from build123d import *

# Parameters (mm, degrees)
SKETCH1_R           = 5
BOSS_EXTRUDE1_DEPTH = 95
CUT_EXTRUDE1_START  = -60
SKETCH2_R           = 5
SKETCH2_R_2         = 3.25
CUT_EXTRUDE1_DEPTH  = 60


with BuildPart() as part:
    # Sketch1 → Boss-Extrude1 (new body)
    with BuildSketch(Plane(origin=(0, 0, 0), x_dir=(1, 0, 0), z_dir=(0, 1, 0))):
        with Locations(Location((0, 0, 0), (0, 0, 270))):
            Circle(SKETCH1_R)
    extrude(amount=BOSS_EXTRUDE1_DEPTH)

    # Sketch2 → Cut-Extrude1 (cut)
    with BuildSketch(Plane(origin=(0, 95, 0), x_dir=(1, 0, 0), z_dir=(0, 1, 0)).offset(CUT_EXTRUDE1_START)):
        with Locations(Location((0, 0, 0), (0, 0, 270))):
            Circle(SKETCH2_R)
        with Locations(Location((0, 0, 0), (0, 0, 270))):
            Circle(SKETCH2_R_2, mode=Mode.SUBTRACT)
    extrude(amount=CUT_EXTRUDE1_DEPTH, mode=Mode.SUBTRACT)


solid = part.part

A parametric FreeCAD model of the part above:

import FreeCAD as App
import Part
import Sketcher
from FreeCAD import Vector
Q = App.Units.Quantity

doc = App.newDocument("Part")
body = doc.addObject("PartDesign::Body", "Body")

sketch1 = body.newObject("Sketcher::SketchObject", "Sketch")
sketch1.AttachmentSupport = (doc.getObject("XZ_Plane"), [""])
sketch1.MapMode = "FlatFace"
sketch1.addGeometry(Part.Circle(Vector(0, 0, 0), Vector(0, 0, 1), 5), False)
sketch1.addConstraint(Sketcher.Constraint("Coincident", 0, 3, -1, 1))
sketch1.addConstraint(Sketcher.Constraint("Diameter", 0, Q("10 mm")))
pad1 = body.newObject("PartDesign::Pad", "Pad")
pad1.Profile = sketch1
pad1.Length = 95
pad1.Reversed = True

sketch2 = body.newObject("Sketcher::SketchObject", "Sketch001")
sketch2.AttachmentSupport = (doc.getObject("XZ_Plane"), [""])
sketch2.MapMode = "FlatFace"
sketch2.AttachmentOffset = App.Placement(Vector(0, 0, -35), App.Rotation())
sketch2.addGeometry(Part.Circle(Vector(0, 0, 0), Vector(0, 0, 1), 5), False)
sketch2.addGeometry(Part.Circle(Vector(0, 0, 0), Vector(0, 0, 1), 3.2), False)
sketch2.addConstraint(Sketcher.Constraint("Coincident", 0, 3, -1, 1))
sketch2.addConstraint(Sketcher.Constraint("Coincident", 1, 3, -1, 1))
sketch2.addConstraint(Sketcher.Constraint("Diameter", 0, Q("10 mm")))
sketch2.addConstraint(Sketcher.Constraint("Diameter", 1, Q("6.5 mm")))
pocket1 = body.newObject("PartDesign::Pocket", "Pocket")
pocket1.Profile = sketch2
pocket1.Length = 60

doc.recompute()
